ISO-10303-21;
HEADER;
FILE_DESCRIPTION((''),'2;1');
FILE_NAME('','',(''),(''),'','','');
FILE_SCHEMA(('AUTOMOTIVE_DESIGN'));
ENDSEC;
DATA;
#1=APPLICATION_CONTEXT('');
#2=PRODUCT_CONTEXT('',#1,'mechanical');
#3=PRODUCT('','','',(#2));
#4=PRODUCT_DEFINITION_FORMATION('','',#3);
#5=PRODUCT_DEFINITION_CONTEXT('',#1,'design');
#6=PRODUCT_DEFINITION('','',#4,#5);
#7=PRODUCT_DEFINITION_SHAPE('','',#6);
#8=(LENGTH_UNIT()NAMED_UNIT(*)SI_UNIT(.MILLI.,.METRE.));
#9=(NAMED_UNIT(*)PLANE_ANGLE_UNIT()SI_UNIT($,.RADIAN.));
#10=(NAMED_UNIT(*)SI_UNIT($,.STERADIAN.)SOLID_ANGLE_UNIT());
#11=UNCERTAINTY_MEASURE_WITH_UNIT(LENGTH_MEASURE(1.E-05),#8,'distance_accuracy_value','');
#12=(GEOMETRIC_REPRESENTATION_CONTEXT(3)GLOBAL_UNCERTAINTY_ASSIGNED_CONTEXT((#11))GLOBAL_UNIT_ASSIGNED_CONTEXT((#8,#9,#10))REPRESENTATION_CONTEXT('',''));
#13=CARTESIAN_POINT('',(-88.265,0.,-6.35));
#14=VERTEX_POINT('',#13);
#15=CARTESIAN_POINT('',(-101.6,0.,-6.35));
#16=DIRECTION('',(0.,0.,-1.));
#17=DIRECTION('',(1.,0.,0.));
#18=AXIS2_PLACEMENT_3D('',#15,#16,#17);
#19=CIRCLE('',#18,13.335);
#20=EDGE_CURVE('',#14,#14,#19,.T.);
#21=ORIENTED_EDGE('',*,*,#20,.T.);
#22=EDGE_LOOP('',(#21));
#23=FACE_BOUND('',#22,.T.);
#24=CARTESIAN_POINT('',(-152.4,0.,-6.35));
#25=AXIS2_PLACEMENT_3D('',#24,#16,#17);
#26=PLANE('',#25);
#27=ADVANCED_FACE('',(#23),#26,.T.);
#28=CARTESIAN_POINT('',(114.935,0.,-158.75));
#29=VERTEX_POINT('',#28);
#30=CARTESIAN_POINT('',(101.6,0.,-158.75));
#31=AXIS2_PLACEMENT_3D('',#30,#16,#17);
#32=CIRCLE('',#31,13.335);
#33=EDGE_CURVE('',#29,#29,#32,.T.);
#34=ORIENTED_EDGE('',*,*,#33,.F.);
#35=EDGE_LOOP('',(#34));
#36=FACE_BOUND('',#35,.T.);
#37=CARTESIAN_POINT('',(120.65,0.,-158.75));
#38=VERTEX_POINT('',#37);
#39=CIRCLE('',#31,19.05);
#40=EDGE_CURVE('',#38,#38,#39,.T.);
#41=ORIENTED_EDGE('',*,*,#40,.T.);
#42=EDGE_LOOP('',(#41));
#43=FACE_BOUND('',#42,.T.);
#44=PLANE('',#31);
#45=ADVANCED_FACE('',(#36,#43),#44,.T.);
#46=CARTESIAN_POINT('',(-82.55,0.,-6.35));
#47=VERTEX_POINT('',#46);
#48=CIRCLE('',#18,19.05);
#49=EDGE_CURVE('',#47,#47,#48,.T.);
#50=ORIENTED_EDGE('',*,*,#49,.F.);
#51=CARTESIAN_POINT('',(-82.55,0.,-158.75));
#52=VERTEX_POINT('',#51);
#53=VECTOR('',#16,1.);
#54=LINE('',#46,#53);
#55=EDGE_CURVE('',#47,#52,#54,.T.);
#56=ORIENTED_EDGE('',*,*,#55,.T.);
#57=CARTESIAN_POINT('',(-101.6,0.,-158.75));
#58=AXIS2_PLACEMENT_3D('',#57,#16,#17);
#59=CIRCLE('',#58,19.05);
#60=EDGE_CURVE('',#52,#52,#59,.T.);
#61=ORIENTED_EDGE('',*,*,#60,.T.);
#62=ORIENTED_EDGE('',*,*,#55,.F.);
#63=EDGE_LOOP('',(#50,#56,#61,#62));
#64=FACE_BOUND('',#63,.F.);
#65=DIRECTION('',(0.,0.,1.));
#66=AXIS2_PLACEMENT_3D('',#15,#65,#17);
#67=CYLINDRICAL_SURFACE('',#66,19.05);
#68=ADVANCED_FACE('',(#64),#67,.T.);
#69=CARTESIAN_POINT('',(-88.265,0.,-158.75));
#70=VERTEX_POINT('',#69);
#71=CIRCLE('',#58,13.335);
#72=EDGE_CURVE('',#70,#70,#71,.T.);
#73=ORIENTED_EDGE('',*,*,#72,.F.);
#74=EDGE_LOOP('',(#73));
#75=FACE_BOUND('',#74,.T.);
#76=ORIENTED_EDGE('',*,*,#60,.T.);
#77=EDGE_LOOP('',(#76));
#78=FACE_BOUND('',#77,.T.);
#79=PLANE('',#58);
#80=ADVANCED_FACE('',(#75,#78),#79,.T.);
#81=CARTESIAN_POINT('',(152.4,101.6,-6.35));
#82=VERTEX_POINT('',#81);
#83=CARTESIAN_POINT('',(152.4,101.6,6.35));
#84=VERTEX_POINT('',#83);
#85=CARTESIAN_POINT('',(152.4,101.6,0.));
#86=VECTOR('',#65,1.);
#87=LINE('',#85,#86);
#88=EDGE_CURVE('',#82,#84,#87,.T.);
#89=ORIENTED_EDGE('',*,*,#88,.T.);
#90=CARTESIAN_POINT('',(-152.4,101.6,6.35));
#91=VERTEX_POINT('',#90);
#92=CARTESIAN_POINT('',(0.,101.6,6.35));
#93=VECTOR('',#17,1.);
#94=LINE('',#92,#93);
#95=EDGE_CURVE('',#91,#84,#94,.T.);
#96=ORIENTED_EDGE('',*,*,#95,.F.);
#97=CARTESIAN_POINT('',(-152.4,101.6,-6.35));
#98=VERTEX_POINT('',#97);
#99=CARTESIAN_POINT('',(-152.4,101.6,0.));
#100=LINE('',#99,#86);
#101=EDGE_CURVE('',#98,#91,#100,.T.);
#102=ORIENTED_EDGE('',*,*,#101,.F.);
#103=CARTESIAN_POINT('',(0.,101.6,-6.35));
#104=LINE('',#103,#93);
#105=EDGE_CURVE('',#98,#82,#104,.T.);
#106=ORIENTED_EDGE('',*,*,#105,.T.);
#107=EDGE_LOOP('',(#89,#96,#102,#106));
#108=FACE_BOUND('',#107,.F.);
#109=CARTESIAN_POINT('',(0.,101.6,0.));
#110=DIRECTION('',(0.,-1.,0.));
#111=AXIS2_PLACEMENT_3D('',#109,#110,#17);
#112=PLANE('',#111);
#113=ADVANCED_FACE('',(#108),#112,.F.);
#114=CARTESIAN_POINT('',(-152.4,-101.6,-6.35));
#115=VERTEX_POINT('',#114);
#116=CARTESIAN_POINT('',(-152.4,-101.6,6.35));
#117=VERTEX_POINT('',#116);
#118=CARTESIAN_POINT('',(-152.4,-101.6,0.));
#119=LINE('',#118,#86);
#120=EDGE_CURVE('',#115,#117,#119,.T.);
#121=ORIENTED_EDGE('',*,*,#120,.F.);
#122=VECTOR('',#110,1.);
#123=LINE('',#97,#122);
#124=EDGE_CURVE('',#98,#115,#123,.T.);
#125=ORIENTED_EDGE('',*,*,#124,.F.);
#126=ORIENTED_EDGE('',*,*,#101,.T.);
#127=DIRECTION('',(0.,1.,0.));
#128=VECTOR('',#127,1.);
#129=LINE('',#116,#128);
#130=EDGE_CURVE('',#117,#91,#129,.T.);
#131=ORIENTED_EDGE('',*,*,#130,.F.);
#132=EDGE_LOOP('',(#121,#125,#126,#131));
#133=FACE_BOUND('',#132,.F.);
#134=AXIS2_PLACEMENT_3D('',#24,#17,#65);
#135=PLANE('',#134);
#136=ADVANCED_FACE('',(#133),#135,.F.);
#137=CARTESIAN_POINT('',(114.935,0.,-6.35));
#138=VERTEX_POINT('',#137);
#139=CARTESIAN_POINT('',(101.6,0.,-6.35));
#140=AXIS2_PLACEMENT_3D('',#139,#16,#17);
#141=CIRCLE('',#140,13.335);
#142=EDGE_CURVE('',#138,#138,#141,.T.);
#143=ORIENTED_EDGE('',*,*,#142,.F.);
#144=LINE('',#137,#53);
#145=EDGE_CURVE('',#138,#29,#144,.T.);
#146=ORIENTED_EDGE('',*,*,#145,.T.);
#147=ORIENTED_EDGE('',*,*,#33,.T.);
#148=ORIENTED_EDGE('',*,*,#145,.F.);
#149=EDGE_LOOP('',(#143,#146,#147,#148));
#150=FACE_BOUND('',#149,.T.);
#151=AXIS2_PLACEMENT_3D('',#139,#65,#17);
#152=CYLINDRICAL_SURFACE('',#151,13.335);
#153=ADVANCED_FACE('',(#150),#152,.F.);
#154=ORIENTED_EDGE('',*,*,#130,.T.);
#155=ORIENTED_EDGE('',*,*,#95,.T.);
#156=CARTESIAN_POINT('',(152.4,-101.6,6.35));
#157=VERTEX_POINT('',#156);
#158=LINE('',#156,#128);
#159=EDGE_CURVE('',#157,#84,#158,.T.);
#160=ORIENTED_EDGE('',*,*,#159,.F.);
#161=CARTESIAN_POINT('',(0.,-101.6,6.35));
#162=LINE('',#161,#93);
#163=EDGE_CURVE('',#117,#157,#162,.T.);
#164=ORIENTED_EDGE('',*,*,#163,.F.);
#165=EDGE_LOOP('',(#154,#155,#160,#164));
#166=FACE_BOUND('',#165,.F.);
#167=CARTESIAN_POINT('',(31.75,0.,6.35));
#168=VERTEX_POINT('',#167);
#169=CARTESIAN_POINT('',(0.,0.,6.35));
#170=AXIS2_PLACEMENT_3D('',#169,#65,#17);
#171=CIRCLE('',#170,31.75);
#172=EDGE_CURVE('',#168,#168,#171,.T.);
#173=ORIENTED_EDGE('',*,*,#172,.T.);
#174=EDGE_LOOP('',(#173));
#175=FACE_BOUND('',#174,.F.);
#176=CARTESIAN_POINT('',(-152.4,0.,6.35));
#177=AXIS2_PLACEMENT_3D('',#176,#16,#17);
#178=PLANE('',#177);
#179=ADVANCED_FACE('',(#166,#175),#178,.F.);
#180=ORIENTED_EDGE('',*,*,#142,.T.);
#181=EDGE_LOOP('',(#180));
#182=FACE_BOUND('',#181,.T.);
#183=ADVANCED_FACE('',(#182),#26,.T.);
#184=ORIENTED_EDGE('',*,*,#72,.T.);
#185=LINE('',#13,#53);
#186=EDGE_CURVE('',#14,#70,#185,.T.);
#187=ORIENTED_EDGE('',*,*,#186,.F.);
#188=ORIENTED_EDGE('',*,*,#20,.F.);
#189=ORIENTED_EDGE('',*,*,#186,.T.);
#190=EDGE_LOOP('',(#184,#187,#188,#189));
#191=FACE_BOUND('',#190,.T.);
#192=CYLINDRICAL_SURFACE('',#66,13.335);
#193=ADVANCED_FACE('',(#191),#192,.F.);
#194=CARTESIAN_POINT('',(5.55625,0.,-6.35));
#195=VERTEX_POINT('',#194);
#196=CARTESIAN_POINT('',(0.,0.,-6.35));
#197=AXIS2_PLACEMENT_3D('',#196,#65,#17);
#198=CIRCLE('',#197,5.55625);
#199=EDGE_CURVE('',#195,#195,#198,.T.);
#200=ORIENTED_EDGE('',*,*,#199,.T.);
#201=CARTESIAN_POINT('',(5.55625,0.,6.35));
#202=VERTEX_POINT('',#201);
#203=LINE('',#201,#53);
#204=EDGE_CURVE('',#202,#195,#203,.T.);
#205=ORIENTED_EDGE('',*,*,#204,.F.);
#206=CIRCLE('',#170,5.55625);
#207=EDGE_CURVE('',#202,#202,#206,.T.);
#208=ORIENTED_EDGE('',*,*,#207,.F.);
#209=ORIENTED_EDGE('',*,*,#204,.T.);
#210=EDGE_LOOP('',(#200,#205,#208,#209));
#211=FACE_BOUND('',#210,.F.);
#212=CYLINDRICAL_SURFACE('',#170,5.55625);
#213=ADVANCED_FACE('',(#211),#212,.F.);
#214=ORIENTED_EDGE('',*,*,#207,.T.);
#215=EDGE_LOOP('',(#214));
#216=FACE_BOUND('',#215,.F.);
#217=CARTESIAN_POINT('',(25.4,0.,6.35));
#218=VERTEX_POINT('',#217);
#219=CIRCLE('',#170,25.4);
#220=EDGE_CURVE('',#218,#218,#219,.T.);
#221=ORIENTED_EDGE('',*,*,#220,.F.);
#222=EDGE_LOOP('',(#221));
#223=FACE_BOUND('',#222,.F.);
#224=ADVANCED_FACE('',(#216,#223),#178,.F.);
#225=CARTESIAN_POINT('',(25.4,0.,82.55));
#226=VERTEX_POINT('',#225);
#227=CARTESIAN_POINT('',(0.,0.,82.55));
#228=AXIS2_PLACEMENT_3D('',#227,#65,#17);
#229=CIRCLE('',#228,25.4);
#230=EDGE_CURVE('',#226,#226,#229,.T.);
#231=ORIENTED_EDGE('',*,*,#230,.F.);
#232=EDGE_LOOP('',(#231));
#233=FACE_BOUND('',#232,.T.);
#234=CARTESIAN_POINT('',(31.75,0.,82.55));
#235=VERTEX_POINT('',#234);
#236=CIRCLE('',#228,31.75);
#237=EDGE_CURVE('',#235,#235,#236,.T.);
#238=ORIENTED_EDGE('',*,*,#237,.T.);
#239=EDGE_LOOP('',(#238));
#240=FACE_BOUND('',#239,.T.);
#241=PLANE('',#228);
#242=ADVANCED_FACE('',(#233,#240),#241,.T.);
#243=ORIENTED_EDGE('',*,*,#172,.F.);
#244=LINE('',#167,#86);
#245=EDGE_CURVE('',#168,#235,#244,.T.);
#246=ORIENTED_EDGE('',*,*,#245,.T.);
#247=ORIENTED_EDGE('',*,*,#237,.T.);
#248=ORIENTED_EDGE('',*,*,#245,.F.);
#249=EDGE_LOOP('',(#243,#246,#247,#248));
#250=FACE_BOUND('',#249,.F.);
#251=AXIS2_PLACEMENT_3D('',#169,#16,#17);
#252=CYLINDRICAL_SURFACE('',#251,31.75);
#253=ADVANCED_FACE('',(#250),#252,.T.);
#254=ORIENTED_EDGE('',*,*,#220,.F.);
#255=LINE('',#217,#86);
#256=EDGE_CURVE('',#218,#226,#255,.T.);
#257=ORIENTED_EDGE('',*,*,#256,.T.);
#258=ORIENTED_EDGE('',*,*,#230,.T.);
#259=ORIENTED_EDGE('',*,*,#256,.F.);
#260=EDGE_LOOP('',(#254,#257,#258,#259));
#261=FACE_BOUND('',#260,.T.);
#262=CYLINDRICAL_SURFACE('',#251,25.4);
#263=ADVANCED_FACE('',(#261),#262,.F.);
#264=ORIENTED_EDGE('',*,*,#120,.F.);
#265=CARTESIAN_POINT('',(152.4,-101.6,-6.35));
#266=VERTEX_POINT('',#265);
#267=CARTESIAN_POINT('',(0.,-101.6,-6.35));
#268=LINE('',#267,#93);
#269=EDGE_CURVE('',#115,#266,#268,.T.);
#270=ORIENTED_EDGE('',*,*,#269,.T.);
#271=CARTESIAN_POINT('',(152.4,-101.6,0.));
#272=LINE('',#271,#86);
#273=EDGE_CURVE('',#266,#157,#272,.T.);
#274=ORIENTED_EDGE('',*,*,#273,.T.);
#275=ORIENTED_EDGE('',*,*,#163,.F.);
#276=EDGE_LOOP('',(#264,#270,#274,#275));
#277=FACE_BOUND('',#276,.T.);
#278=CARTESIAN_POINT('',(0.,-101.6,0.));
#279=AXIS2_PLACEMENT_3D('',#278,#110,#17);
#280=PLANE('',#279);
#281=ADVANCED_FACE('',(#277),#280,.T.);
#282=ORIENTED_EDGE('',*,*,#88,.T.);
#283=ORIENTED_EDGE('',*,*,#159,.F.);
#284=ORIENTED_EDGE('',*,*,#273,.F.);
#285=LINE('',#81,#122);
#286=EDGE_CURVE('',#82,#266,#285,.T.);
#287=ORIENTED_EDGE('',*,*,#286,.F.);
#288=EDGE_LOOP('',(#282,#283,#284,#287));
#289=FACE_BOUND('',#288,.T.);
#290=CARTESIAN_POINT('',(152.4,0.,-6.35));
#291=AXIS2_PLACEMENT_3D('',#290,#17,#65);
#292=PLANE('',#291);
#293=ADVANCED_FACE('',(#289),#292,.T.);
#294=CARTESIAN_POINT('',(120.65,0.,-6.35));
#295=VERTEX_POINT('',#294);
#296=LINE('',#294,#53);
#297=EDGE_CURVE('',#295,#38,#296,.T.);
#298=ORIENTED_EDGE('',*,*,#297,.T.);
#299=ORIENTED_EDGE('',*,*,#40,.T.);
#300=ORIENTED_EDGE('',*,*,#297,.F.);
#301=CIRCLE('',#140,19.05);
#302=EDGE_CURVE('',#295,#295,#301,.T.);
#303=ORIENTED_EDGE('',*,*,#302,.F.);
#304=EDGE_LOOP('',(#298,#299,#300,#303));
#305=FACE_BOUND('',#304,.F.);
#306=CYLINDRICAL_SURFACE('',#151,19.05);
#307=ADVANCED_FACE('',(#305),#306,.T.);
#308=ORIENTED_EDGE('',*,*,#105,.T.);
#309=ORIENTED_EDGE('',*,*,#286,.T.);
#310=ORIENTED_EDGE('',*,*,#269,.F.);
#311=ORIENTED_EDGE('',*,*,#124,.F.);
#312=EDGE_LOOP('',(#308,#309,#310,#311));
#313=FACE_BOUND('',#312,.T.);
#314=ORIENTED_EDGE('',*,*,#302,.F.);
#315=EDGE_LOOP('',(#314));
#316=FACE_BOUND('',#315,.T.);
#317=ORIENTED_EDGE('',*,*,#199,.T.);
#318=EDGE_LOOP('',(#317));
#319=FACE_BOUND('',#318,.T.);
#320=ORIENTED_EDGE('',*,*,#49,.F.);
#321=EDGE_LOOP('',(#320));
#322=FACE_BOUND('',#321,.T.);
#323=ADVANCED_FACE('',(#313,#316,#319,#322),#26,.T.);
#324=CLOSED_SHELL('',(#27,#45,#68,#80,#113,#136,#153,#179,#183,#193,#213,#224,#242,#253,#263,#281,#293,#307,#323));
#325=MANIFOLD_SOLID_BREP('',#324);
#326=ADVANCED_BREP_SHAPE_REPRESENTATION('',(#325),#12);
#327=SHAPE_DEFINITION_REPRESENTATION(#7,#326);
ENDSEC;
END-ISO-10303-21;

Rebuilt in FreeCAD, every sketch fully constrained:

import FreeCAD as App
import Part
import Sketcher
from FreeCAD import Vector
Q = App.Units.Quantity


def add_polygon(sketch, points):
    """Adds a closed chain of lines whose ends are joined by coincident constraints."""
    first, n = sketch.GeometryCount, len(points)
    for a, b in zip(points, points[1:] + points[:1]):
        sketch.addGeometry(Part.LineSegment(App.Vector(*a, 0), App.Vector(*b, 0)), False)
    for i in range(n):
        sketch.addConstraint(Sketcher.Constraint("Coincident", first + i, 2, first + (i + 1) % n, 1))

doc = App.newDocument("Part")
body = doc.addObject("PartDesign::Body", "Body")

sketch1 = body.newObject("Sketcher::SketchObject", "Sketch")
sketch1.AttachmentSupport = (doc.getObject("XZ_Plane"), [""])
sketch1.MapMode = "FlatFace"
add_polygon(sketch1, [(-152.4, 6.35), (-152.4, -6.35), (152.4, -6.35), (152.4, 6.35)])
sketch1.addConstraint([
    Sketcher.Constraint("Vertical", 0),
    Sketcher.Constraint("Horizontal", 1),
    Sketcher.Constraint("Vertical", 2),
    Sketcher.Constraint("Horizontal", 3),
    Sketcher.Constraint("Symmetric", 0, 2, 2, 2, -1, 1),
    Sketcher.Constraint("DistanceX", 1, 1, 1, 2, Q("12 in")),
    Sketcher.Constraint("DistanceY", 0, 2, 0, 1, Q("0.5 in")),
])
pad1 = body.newObject("PartDesign::Pad", "Pad")
pad1.Profile = sketch1
pad1.Length = Q("8 in")
pad1.Midplane = True

sketch2 = body.newObject("Sketcher::SketchObject", "Sketch001")
sketch2.AttachmentSupport = (doc.getObject("XY_Plane"), [""])
sketch2.MapMode = "FlatFace"
sketch2.AttachmentOffset = App.Placement(Vector(0, 0, -0.25 * 25.4), App.Rotation())
sketch2.addGeometry([
    Part.Circle(Vector(101.6, 0, 0), Vector(0, 0, 1), 19.05),
    Part.Circle(Vector(101.6, 0, 0), Vector(0, 0, 1), 13.335),
    Part.Circle(Vector(-101.6, 0, 0), Vector(0, 0, 1), 19.05),
    Part.Circle(Vector(-101.6, 0, 0), Vector(0, 0, 1), 13.335),
], False)
sketch2.addConstraint([
    Sketcher.Constraint("Coincident", 1, 3, 0, 3),
    Sketcher.Constraint("Coincident", 3, 3, 2, 3),
    Sketcher.Constraint("Equal", 0, 2),
    Sketcher.Constraint("Equal", 1, 3),
    Sketcher.Constraint("Symmetric", 0, 3, 2, 3, -1, 1),
    Sketcher.Constraint("PointOnObject", 0, 3, -1),
    Sketcher.Constraint("Diameter", 0, Q("1.5 in")),
    Sketcher.Constraint("Diameter", 1, Q("1.05 in")),
    Sketcher.Constraint("DistanceX", -1, 1, 0, 3, Q("4 in")),
])
pad2 = body.newObject("PartDesign::Pad", "Pad001")
pad2.Profile = sketch2
pad2.Length = Q("6 in")
pad2.Reversed = True

sketch3 = body.newObject("Sketcher::SketchObject", "Sketch002")
sketch3.AttachmentSupport = (doc.getObject("XY_Plane"), [""])
sketch3.MapMode = "FlatFace"
sketch3.AttachmentOffset = App.Placement(Vector(0, 0, 0.25 * 25.4), App.Rotation())
sketch3.addGeometry(Part.Circle(Vector(0, 0, 0), Vector(0, 0, 1), 5.55625), False)
sketch3.addConstraint([
    Sketcher.Constraint("Coincident", 0, 3, -1, 1),
    Sketcher.Constraint("Diameter", 0, Q("0.4375 in")),
])
pocket1 = body.newObject("PartDesign::Pocket", "Pocket")
pocket1.Profile = sketch3
pocket1.Length = Q("1 in")

sketch4 = body.newObject("Sketcher::SketchObject", "Sketch003")
sketch4.AttachmentSupport = (doc.getObject("XY_Plane"), [""])
sketch4.MapMode = "FlatFace"
sketch4.AttachmentOffset = App.Placement(Vector(0, 0, 0.25 * 25.4), App.Rotation())
sketch4.addGeometry([
    Part.Circle(Vector(0, 0, 0), Vector(0, 0, 1), 31.75),
    Part.Circle(Vector(0, 0, 0), Vector(0, 0, 1), 25.4),
], False)
sketch4.addConstraint([
    Sketcher.Constraint("Coincident", 0, 3, -1, 1),
    Sketcher.Constraint("Coincident", 1, 3, -1, 1),
    Sketcher.Constraint("Diameter", 1, Q("2 in")),
    Sketcher.Constraint("Diameter", 0, Q("2.5 in")),
])
pad3 = body.newObject("PartDesign::Pad", "Pad002")
pad3.Profile = sketch4
pad3.Length = Q("3 in")

doc.recompute()
